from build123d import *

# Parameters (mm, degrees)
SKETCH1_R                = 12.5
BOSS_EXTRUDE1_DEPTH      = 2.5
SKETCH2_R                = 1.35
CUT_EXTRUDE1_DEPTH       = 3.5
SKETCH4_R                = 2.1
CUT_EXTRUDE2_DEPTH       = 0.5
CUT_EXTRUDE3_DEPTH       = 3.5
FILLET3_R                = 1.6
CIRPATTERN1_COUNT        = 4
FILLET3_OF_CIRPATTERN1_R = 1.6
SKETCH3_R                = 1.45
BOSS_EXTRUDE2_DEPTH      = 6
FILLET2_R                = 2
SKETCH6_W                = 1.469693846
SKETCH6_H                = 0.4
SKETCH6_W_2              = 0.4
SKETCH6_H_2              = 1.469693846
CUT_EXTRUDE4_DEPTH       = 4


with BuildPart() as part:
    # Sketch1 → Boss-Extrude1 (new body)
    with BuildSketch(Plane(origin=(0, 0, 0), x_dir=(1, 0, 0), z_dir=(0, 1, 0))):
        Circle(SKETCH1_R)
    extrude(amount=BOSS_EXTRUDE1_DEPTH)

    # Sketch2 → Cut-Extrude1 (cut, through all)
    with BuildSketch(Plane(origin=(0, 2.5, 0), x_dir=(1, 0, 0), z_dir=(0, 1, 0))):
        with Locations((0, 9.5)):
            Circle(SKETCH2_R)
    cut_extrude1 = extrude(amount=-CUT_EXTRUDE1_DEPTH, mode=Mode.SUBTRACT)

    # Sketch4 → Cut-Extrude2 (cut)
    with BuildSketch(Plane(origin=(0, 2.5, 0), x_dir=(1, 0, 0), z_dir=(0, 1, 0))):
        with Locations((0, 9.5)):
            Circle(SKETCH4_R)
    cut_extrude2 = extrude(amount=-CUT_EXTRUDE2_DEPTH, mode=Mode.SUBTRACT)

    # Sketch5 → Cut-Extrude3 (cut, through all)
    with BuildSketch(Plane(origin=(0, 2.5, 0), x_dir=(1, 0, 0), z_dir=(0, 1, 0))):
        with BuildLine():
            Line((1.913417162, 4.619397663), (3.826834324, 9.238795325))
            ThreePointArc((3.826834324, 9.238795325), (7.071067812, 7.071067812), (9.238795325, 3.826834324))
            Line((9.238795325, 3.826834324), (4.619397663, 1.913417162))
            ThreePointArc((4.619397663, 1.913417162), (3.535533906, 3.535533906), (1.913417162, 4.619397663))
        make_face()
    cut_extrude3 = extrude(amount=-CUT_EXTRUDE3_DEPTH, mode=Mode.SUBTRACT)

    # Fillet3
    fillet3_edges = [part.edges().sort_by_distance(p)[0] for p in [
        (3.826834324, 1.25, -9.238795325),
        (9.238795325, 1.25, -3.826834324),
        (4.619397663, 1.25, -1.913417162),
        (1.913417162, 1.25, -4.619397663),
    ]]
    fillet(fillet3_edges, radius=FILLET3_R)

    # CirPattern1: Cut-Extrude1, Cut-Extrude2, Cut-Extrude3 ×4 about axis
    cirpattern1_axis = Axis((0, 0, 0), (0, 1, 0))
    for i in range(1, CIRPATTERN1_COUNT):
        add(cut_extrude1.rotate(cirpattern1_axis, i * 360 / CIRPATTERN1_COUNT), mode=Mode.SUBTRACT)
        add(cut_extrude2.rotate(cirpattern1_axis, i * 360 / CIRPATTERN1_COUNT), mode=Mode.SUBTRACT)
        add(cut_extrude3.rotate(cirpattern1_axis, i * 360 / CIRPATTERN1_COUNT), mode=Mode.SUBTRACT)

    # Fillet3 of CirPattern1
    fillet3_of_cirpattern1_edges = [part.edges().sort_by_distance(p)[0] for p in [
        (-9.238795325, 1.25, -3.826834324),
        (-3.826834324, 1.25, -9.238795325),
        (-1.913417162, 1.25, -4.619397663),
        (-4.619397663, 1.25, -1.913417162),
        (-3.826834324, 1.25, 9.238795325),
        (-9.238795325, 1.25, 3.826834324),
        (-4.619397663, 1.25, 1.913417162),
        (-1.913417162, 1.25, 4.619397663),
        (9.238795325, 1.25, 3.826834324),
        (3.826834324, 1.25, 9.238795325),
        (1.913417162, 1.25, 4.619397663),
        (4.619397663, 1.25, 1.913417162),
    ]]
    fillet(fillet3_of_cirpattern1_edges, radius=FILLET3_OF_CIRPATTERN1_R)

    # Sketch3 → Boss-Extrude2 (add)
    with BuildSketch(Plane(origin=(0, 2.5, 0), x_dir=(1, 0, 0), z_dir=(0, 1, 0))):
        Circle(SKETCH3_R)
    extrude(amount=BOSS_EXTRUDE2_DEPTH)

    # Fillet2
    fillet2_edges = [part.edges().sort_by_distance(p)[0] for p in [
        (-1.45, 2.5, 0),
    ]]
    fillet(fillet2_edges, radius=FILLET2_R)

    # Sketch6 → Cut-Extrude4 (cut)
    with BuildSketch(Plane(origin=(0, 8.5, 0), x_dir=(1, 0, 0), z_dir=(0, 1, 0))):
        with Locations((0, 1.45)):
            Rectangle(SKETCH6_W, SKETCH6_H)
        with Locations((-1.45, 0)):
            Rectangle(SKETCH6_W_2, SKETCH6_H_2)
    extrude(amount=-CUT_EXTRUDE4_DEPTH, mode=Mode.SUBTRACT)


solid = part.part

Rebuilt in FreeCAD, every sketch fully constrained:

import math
import FreeCAD as App
import Part
import Sketcher

V = App.Vector
Q = App.Units.Quantity


def edges_at(feature, points):
    """Names of the edges that pass closest to the given points."""
    edges = feature.Shape.Edges
    near = lambda p: min(range(len(edges)), key=lambda i: edges[i].distToShape(Part.Vertex(*p))[0])
    return sorted({f"Edge{near(p) + 1}" for p in points})

doc = App.newDocument("Part")
params = doc.addObject("Spreadsheet::Sheet", "Params")
for row, (alias, value) in enumerate([
    ("sketch1_diameter", "25 mm"),
    ("pad1_length", "2.5 mm"),
    ("sketch2_diameter", "2.7 mm"),
    ("sketch3_diameter", "4.2 mm"),
    ("pocket2_length", "0.5 mm"),
    ("sketch4_radius", "5 mm"),
    ("sketch4_radius2", "10 mm"),
    ("fillet_radius", "1.6 mm"),
    ("fillet2_radius", "1.6 mm"),
    ("sketch5_diameter", "2.9 mm"),
    ("pad2_length", "6 mm"),
    ("fillet3_radius", "2 mm"),
    ("sketch6_width", "0.4 mm"),
    ("pocket4_length", "4 mm"),
], start=1):
    params.set(f"A{row}", alias)
    params.set(f"B{row}", "=" + value)
    params.setAlias(f"B{row}", alias)

body = doc.addObject("PartDesign::Body", "Body")

sketch1 = body.newObject("Sketcher::SketchObject", "Sketch")
sketch1.AttachmentSupport = (doc.getObject("XZ_Plane"), [""])
sketch1.MapMode = "FlatFace"
sketch1.addGeometry(Part.Circle(V(0, 0, 0), V(0, 0, 1), 12), False)
sketch1.addConstraint(Sketcher.Constraint("Coincident", 0, 3, -1, 1))
sketch1.addConstraint(Sketcher.Constraint("Diameter", 0, Q("25 mm")))
sketch1.setExpression("Constraints[1]", "Params.sketch1_diameter")
pad1 = body.newObject("PartDesign::Pad", "Pad")
pad1.Profile = sketch1
pad1.setExpression("Length", "Params.pad1_length")
pad1.Reversed = True

sketch2 = body.newObject("Sketcher::SketchObject", "Sketch001")
sketch2.AttachmentSupport = (doc.getObject("XZ_Plane"), [""])
sketch2.MapMode = "FlatFace"
sketch2.AttachmentOffset = App.Placement(V(0, 0, -2.5), App.Rotation())
sketch2.addGeometry(Part.Circle(V(0, -9.5, 0), V(0, 0, 1), 1.4), False)
sketch2.addConstraint(Sketcher.Constraint("PointOnObject", 0, 3, -2))
sketch2.addConstraint(Sketcher.Constraint("Diameter", 0, Q("2.7 mm")))
sketch2.addConstraint(Sketcher.Constraint("DistanceY", 0, 3, -1, 1, Q("9.5 mm")))
sketch2.setExpression("Constraints[1]", "Params.sketch2_diameter")
pocket1 = body.newObject("PartDesign::Pocket", "Pocket")
pocket1.Profile = sketch2
pocket1.Type = "ThroughAll"
pocket1.Reversed = True

sketch3 = body.newObject("Sketcher::SketchObject", "Sketch002")
sketch3.AttachmentSupport = (doc.getObject("XZ_Plane"), [""])
sketch3.MapMode = "FlatFace"
sketch3.AttachmentOffset = App.Placement(V(0, 0, -2.5), App.Rotation())
sketch3.addGeometry(Part.Circle(V(0, -9.5, 0), V(0, 0, 1), 2.1), False)
sketch3.addConstraint(Sketcher.Constraint("PointOnObject", 0, 3, -2))
sketch3.addConstraint(Sketcher.Constraint("Diameter", 0, Q("4.2 mm")))
sketch3.addConstraint(Sketcher.Constraint("DistanceY", 0, 3, -1, 1, Q("9.5 mm")))
sketch3.setExpression("Constraints[1]", "Params.sketch3_diameter")
pocket2 = body.newObject("PartDesign::Pocket", "Pocket001")
pocket2.Profile = sketch3
pocket2.setExpression("Length", "Params.pocket2_length")
pocket2.Reversed = True

sketch4 = body.newObject("Sketcher::SketchObject", "Sketch003")
sketch4.AttachmentSupport = (doc.getObject("XZ_Plane"), [""])
sketch4.MapMode = "FlatFace"
sketch4.AttachmentOffset = App.Placement(V(0, 0, -2.5), App.Rotation())
sketch4.addGeometry(Part.LineSegment(V(3.8, -9.2, 0), V(1.9, -4.6, 0)), False)
sketch4.addGeometry(Part.ArcOfCircle(Part.Circle(V(0, 0, 0), V(0, 0, 1), 5), math.radians(-67), math.radians(-23)), False)
sketch4.addGeometry(Part.LineSegment(V(4.6, -1.9, 0), V(9.2, -3.8, 0)), False)
sketch4.addGeometry(Part.ArcOfCircle(Part.Circle(V(0, 0, 0), V(0, 0, 1), 10), math.radians(-68), math.radians(-22)), False)
sketch4.addConstraint(Sketcher.Constraint("Coincident", 0, 2, 1, 1))
sketch4.addConstraint(Sketcher.Constraint("Coincident", 1, 2, 2, 1))
sketch4.addConstraint(Sketcher.Constraint("Coincident", 2, 2, 3, 2))
sketch4.addConstraint(Sketcher.Constraint("Coincident", 3, 1, 0, 1))
sketch4.addConstraint(Sketcher.Constraint("Coincident", 1, 3, -1, 1))
sketch4.addConstraint(Sketcher.Constraint("Coincident", 3, 3, -1, 1))
sketch4.addConstraint(Sketcher.Constraint("Radius", 1, Q("5 mm")))
sketch4.addConstraint(Sketcher.Constraint("Radius", 3, Q("10 mm")))
sketch4.addConstraint(Sketcher.Constraint("Angle", 0, Q("112.5 deg")))
sketch4.addConstraint(Sketcher.Constraint("Angle", 2, Q("-22.5 deg")))
sketch4.addConstraint(Sketcher.Constraint("DistanceX", 0, 2, 1, 2, Q("2.705981 mm")))
sketch4.addConstraint(Sketcher.Constraint("DistanceY", 0, 2, 1, 2, Q("2.705981 mm")))
sketch4.setExpression("Constraints[6]", "Params.sketch4_radius")
sketch4.setExpression("Constraints[7]", "Params.sketch4_radius2")
pocket3 = body.newObject("PartDesign::Pocket", "Pocket002")
pocket3.Profile = sketch4
pocket3.Type = "ThroughAll"
pocket3.Reversed = True
doc.recompute()

fillet = body.newObject("PartDesign::Fillet", "Fillet")
fillet.Base = (pocket3, edges_at(pocket3, [
    (3.827, 1.25, -9.239),
    (9.239, 1.25, -3.827),
    (4.619, 1.25, -1.913),
    (1.913, 1.25, -4.619),
]))
fillet.setExpression("Radius", "Params.fillet_radius")
doc.recompute()

polarpattern = body.newObject("PartDesign::PolarPattern", "PolarPattern")
polarpattern.Originals = [pocket1, pocket2, pocket3]
polarpattern.Axis = (doc.getObject("Y_Axis"), [""])
polarpattern.Angle = 360
polarpattern.Occurrences = 4
body.Tip = polarpattern
doc.recompute()

fillet2 = body.newObject("PartDesign::Fillet", "Fillet001")
fillet2.Base = (polarpattern, edges_at(polarpattern, [
    (-9.239, 1.25, -3.827),
    (-3.827, 1.25, -9.239),
    (-1.913, 1.25, -4.619),
    (-4.619, 1.25, -1.913),
    (-3.827, 1.25, 9.239),
    (-9.239, 1.25, 3.827),
    (-4.619, 1.25, 1.913),
    (-1.913, 1.25, 4.619),
    (9.239, 1.25, 3.827),
    (3.827, 1.25, 9.239),
    (1.913, 1.25, 4.619),
    (4.619, 1.25, 1.913),
]))
fillet2.setExpression("Radius", "Params.fillet2_radius")

sketch5 = body.newObject("Sketcher::SketchObject", "Sketch004")
sketch5.AttachmentSupport = (doc.getObject("XZ_Plane"), [""])
sketch5.MapMode = "FlatFace"
sketch5.AttachmentOffset = App.Placement(V(0, 0, -2.5), App.Rotation())
sketch5.addGeometry(Part.Circle(V(0, 0, 0), V(0, 0, 1), 1.4), False)
sketch5.addConstraint(Sketcher.Constraint("Coincident", 0, 3, -1, 1))
sketch5.addConstraint(Sketcher.Constraint("Diameter", 0, Q("2.9 mm")))
sketch5.setExpression("Constraints[1]", "Params.sketch5_diameter")
pad2 = body.newObject("PartDesign::Pad", "Pad001")
pad2.Profile = sketch5
pad2.setExpression("Length", "Params.pad2_length")
pad2.Reversed = True
doc.recompute()

fillet3 = body.newObject("PartDesign::Fillet", "Fillet002")
fillet3.Base = (pad2, edges_at(pad2, [(-1.45, 2.5, 0)]))
fillet3.setExpression("Radius", "Params.fillet3_radius")

sketch6 = body.newObject("Sketcher::SketchObject", "Sketch005")
sketch6.AttachmentSupport = (doc.getObject("XZ_Plane"), [""])
sketch6.MapMode = "FlatFace"
sketch6.AttachmentOffset = App.Placement(V(0, 0, -8.5), App.Rotation())
sketch6.addGeometry(Part.LineSegment(V(-0.73, -1.65, 0), V(-0.73, -1.25, 0)), False)
sketch6.addGeometry(Part.LineSegment(V(-0.73, -1.25, 0), V(0.73, -1.25, 0)), False)
sketch6.addGeometry(Part.LineSegment(V(0.73, -1.25, 0), V(0.73, -1.65, 0)), False)
sketch6.addGeometry(Part.LineSegment(V(0.73, -1.65, 0), V(-0.73, -1.65, 0)), False)
sketch6.addGeometry(Part.LineSegment(V(-1.65, -0.73, 0), V(-1.65, 0.73, 0)), False)
sketch6.addGeometry(Part.LineSegment(V(-1.65, 0.73, 0), V(-1.25, 0.73, 0)), False)
sketch6.addGeometry(Part.LineSegment(V(-1.25, 0.73, 0), V(-1.25, -0.73, 0)), False)
sketch6.addGeometry(Part.LineSegment(V(-1.25, -0.73, 0), V(-1.65, -0.73, 0)), False)
sketch6.addConstraint(Sketcher.Constraint("Coincident", 0, 2, 1, 1))
sketch6.addConstraint(Sketcher.Constraint("Coincident", 1, 2, 2, 1))
sketch6.addConstraint(Sketcher.Constraint("Coincident", 2, 2, 3, 1))
sketch6.addConstraint(Sketcher.Constraint("Coincident", 3, 2, 0, 1))
sketch6.addConstraint(Sketcher.Constraint("Coincident", 4, 2, 5, 1))
sketch6.addConstraint(Sketcher.Constraint("Coincident", 5, 2, 6, 1))
sketch6.addConstraint(Sketcher.Constraint("Coincident", 6, 2, 7, 1))
sketch6.addConstraint(Sketcher.Constraint("Coincident", 7, 2, 4, 1))
sketch6.addConstraint(Sketcher.Constraint("Vertical", 0))
sketch6.addConstraint(Sketcher.Constraint("Horizontal", 1))
sketch6.addConstraint(Sketcher.Constraint("Vertical", 2))
sketch6.addConstraint(Sketcher.Constraint("Horizontal", 3))
sketch6.addConstraint(Sketcher.Constraint("Vertical", 4))
sketch6.addConstraint(Sketcher.Constraint("Horizontal", 5))
sketch6.addConstraint(Sketcher.Constraint("Vertical", 6))
sketch6.addConstraint(Sketcher.Constraint("Horizontal", 7))
sketch6.addConstraint(Sketcher.Constraint("Equal", 7, 0))
sketch6.addConstraint(Sketcher.Constraint("Equal", 3, 4))
sketch6.addConstraint(Sketcher.Constraint("DistanceX", 5, 1, 5, 2, Q("0.4 mm")))
sketch6.addConstraint(Sketcher.Constraint("DistanceY", 0, 2, -1, 1, Q("1.25 mm")))
sketch6.addConstraint(Sketcher.Constraint("DistanceX", 4, 2, -1, 1, Q("1.65 mm")))
sketch6.addConstraint(Sketcher.Constraint("DistanceX", 1, 1, 1, 2, Q("1.469694 mm")))
sketch6.addConstraint(Sketcher.Constraint("DistanceX", 0, 2, -1, 1, Q("0.734847 mm")))
sketch6.addConstraint(Sketcher.Constraint("DistanceY", -1, 1, 4, 2, Q("0.734847 mm")))
sketch6.setExpression("Constraints[18]", "Params.sketch6_width")
pocket4 = body.newObject("PartDesign::Pocket", "Pocket003")
pocket4.Profile = sketch6
pocket4.setExpression("Length", "Params.pocket4_length")
pocket4.Reversed = True

doc.recompute()
